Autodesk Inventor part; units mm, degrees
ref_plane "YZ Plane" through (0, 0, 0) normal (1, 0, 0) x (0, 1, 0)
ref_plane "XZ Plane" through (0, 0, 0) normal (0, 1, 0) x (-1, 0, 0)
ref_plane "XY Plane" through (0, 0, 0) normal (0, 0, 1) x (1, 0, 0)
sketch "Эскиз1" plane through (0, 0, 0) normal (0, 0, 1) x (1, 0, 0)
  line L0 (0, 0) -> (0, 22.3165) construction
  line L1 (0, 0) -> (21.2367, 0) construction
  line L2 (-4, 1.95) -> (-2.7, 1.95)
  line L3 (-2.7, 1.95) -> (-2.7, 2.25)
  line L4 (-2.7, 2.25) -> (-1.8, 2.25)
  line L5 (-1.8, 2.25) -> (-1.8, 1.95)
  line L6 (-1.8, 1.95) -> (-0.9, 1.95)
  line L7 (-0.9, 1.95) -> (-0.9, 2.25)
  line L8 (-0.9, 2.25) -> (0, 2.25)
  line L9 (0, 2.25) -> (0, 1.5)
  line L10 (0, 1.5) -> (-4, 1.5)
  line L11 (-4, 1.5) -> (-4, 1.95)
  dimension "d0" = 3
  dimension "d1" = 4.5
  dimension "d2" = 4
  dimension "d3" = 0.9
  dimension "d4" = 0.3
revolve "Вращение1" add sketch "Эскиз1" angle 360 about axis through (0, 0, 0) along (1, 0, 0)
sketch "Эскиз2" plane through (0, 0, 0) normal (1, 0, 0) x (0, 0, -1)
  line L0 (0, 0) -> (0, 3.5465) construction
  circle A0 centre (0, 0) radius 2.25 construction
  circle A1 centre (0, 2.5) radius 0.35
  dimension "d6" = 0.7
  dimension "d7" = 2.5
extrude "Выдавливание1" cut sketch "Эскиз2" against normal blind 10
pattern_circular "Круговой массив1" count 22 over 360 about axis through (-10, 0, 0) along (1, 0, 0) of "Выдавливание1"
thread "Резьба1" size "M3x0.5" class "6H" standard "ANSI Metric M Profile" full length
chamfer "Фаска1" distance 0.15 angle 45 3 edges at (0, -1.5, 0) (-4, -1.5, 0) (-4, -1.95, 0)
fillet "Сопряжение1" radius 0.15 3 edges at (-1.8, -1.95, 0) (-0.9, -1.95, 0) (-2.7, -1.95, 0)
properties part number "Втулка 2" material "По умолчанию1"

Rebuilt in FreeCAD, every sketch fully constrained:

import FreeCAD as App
import Part
import Sketcher
from FreeCAD import Vector
Q = App.Units.Quantity


def edges_at(feature, points):
    """Names of the edges that pass closest to the given points."""
    edges = feature.Shape.Edges
    near = lambda p: min(range(len(edges)), key=lambda i: edges[i].distToShape(Part.Vertex(*p))[0])
    return sorted({f"Edge{near(p) + 1}" for p in points})


def add_polygon(sketch, points):
    """Adds a closed chain of lines whose ends are joined by coincident constraints."""
    first, n = sketch.GeometryCount, len(points)
    for a, b in zip(points, points[1:] + points[:1]):
        sketch.addGeometry(Part.LineSegment(App.Vector(*a, 0), App.Vector(*b, 0)), False)
    for i in range(n):
        sketch.addConstraint(Sketcher.Constraint("Coincident", first + i, 2, first + (i + 1) % n, 1))

doc = App.newDocument("Part")
body = doc.addObject("PartDesign::Body", "Body")

sketch1 = body.newObject("Sketcher::SketchObject", "Sketch")
sketch1.AttachmentSupport = (doc.getObject("XY_Plane"), [""])
sketch1.MapMode = "FlatFace"
add_polygon(sketch1, [(-2.7, 1.95), (-4, 1.95), (-4, 1.5), (0, 1.5), (0, 2.25), (-0.9, 2.25), (-0.9, 1.95), (-1.8, 1.95), (-1.8, 2.25), (-2.7, 2.25)])
sketch1.addConstraint(Sketcher.Constraint("Horizontal", 0))
sketch1.addConstraint(Sketcher.Constraint("Vertical", 1))
sketch1.addConstraint(Sketcher.Constraint("Horizontal", 2))
sketch1.addConstraint(Sketcher.Constraint("Vertical", 3))
sketch1.addConstraint(Sketcher.Constraint("Horizontal", 4))
sketch1.addConstraint(Sketcher.Constraint("Vertical", 5))
sketch1.addConstraint(Sketcher.Constraint("Horizontal", 6))
sketch1.addConstraint(Sketcher.Constraint("Vertical", 7))
sketch1.addConstraint(Sketcher.Constraint("Horizontal", 8))
sketch1.addConstraint(Sketcher.Constraint("Vertical", 9))
sketch1.addConstraint(Sketcher.Constraint("PointOnObject", 2, 2, -2))
sketch1.addConstraint(Sketcher.Constraint("Horizontal", 0, 2, 5, 2))
sketch1.addConstraint(Sketcher.Constraint("Horizontal", 4, 2, 7, 2))
sketch1.addConstraint(Sketcher.Constraint("Equal", 4, 6))
sketch1.addConstraint(Sketcher.Constraint("Equal", 6, 8))
sketch1.addConstraint(Sketcher.Constraint("DistanceX", 2, 1, 2, 2, Q("4 mm")))
sketch1.addConstraint(Sketcher.Constraint("DistanceX", 4, 2, 4, 1, Q("0.9 mm")))
sketch1.addConstraint(Sketcher.Constraint("DistanceY", 5, 2, 5, 1, Q("0.3 mm")))
sketch1.addConstraint(Sketcher.Constraint("DistanceY", 1, 2, 1, 1, Q("0.45 mm")))
sketch1.addConstraint(Sketcher.Constraint("DistanceY", -1, 1, 1, 2, Q("1.5 mm")))
revolution = body.newObject("PartDesign::Revolution", "Revolution")
revolution.Profile = sketch1
revolution.ReferenceAxis = (sketch1, ["H_Axis"])
revolution.Angle = 360

sketch2 = body.newObject("Sketcher::SketchObject", "Sketch001")
sketch2.AttachmentSupport = (doc.getObject("YZ_Plane"), [""])
sketch2.MapMode = "FlatFace"
sketch2.addGeometry(Part.Circle(Vector(2.5, 0, 0), Vector(0, 0, 1), 0.35), False)
sketch2.addConstraint(Sketcher.Constraint("PointOnObject", 0, 3, -1))
sketch2.addConstraint(Sketcher.Constraint("Diameter", 0, Q("0.7 mm")))
sketch2.addConstraint(Sketcher.Constraint("DistanceX", -1, 1, 0, 3, Q("2.5 mm")))
pocket1 = body.newObject("PartDesign::Pocket", "Pocket")
pocket1.Profile = sketch2
pocket1.Length = 10
doc.recompute()

polarpattern = body.newObject("PartDesign::PolarPattern", "PolarPattern")
polarpattern.Originals = [pocket1]
polarpattern.Axis = (doc.getObject("X_Axis"), [""])
polarpattern.Angle = 360
polarpattern.Occurrences = 22
body.Tip = polarpattern
doc.recompute()

chamfer = body.newObject("PartDesign::Chamfer", "Chamfer")
chamfer.Base = (polarpattern, edges_at(polarpattern, [(0, -1.5, 0), (-4, -1.5, 0), (-4, -1.95, 0)]))
chamfer.Size = 0.15
doc.recompute()

fillet = body.newObject("PartDesign::Fillet", "Fillet")
fillet.Base = (chamfer, edges_at(chamfer, [(-1.8, -1.95, 0), (-0.9, -1.95, 0), (-2.7, -1.95, 0)]))
fillet.Radius = 0.15

doc.recompute()
